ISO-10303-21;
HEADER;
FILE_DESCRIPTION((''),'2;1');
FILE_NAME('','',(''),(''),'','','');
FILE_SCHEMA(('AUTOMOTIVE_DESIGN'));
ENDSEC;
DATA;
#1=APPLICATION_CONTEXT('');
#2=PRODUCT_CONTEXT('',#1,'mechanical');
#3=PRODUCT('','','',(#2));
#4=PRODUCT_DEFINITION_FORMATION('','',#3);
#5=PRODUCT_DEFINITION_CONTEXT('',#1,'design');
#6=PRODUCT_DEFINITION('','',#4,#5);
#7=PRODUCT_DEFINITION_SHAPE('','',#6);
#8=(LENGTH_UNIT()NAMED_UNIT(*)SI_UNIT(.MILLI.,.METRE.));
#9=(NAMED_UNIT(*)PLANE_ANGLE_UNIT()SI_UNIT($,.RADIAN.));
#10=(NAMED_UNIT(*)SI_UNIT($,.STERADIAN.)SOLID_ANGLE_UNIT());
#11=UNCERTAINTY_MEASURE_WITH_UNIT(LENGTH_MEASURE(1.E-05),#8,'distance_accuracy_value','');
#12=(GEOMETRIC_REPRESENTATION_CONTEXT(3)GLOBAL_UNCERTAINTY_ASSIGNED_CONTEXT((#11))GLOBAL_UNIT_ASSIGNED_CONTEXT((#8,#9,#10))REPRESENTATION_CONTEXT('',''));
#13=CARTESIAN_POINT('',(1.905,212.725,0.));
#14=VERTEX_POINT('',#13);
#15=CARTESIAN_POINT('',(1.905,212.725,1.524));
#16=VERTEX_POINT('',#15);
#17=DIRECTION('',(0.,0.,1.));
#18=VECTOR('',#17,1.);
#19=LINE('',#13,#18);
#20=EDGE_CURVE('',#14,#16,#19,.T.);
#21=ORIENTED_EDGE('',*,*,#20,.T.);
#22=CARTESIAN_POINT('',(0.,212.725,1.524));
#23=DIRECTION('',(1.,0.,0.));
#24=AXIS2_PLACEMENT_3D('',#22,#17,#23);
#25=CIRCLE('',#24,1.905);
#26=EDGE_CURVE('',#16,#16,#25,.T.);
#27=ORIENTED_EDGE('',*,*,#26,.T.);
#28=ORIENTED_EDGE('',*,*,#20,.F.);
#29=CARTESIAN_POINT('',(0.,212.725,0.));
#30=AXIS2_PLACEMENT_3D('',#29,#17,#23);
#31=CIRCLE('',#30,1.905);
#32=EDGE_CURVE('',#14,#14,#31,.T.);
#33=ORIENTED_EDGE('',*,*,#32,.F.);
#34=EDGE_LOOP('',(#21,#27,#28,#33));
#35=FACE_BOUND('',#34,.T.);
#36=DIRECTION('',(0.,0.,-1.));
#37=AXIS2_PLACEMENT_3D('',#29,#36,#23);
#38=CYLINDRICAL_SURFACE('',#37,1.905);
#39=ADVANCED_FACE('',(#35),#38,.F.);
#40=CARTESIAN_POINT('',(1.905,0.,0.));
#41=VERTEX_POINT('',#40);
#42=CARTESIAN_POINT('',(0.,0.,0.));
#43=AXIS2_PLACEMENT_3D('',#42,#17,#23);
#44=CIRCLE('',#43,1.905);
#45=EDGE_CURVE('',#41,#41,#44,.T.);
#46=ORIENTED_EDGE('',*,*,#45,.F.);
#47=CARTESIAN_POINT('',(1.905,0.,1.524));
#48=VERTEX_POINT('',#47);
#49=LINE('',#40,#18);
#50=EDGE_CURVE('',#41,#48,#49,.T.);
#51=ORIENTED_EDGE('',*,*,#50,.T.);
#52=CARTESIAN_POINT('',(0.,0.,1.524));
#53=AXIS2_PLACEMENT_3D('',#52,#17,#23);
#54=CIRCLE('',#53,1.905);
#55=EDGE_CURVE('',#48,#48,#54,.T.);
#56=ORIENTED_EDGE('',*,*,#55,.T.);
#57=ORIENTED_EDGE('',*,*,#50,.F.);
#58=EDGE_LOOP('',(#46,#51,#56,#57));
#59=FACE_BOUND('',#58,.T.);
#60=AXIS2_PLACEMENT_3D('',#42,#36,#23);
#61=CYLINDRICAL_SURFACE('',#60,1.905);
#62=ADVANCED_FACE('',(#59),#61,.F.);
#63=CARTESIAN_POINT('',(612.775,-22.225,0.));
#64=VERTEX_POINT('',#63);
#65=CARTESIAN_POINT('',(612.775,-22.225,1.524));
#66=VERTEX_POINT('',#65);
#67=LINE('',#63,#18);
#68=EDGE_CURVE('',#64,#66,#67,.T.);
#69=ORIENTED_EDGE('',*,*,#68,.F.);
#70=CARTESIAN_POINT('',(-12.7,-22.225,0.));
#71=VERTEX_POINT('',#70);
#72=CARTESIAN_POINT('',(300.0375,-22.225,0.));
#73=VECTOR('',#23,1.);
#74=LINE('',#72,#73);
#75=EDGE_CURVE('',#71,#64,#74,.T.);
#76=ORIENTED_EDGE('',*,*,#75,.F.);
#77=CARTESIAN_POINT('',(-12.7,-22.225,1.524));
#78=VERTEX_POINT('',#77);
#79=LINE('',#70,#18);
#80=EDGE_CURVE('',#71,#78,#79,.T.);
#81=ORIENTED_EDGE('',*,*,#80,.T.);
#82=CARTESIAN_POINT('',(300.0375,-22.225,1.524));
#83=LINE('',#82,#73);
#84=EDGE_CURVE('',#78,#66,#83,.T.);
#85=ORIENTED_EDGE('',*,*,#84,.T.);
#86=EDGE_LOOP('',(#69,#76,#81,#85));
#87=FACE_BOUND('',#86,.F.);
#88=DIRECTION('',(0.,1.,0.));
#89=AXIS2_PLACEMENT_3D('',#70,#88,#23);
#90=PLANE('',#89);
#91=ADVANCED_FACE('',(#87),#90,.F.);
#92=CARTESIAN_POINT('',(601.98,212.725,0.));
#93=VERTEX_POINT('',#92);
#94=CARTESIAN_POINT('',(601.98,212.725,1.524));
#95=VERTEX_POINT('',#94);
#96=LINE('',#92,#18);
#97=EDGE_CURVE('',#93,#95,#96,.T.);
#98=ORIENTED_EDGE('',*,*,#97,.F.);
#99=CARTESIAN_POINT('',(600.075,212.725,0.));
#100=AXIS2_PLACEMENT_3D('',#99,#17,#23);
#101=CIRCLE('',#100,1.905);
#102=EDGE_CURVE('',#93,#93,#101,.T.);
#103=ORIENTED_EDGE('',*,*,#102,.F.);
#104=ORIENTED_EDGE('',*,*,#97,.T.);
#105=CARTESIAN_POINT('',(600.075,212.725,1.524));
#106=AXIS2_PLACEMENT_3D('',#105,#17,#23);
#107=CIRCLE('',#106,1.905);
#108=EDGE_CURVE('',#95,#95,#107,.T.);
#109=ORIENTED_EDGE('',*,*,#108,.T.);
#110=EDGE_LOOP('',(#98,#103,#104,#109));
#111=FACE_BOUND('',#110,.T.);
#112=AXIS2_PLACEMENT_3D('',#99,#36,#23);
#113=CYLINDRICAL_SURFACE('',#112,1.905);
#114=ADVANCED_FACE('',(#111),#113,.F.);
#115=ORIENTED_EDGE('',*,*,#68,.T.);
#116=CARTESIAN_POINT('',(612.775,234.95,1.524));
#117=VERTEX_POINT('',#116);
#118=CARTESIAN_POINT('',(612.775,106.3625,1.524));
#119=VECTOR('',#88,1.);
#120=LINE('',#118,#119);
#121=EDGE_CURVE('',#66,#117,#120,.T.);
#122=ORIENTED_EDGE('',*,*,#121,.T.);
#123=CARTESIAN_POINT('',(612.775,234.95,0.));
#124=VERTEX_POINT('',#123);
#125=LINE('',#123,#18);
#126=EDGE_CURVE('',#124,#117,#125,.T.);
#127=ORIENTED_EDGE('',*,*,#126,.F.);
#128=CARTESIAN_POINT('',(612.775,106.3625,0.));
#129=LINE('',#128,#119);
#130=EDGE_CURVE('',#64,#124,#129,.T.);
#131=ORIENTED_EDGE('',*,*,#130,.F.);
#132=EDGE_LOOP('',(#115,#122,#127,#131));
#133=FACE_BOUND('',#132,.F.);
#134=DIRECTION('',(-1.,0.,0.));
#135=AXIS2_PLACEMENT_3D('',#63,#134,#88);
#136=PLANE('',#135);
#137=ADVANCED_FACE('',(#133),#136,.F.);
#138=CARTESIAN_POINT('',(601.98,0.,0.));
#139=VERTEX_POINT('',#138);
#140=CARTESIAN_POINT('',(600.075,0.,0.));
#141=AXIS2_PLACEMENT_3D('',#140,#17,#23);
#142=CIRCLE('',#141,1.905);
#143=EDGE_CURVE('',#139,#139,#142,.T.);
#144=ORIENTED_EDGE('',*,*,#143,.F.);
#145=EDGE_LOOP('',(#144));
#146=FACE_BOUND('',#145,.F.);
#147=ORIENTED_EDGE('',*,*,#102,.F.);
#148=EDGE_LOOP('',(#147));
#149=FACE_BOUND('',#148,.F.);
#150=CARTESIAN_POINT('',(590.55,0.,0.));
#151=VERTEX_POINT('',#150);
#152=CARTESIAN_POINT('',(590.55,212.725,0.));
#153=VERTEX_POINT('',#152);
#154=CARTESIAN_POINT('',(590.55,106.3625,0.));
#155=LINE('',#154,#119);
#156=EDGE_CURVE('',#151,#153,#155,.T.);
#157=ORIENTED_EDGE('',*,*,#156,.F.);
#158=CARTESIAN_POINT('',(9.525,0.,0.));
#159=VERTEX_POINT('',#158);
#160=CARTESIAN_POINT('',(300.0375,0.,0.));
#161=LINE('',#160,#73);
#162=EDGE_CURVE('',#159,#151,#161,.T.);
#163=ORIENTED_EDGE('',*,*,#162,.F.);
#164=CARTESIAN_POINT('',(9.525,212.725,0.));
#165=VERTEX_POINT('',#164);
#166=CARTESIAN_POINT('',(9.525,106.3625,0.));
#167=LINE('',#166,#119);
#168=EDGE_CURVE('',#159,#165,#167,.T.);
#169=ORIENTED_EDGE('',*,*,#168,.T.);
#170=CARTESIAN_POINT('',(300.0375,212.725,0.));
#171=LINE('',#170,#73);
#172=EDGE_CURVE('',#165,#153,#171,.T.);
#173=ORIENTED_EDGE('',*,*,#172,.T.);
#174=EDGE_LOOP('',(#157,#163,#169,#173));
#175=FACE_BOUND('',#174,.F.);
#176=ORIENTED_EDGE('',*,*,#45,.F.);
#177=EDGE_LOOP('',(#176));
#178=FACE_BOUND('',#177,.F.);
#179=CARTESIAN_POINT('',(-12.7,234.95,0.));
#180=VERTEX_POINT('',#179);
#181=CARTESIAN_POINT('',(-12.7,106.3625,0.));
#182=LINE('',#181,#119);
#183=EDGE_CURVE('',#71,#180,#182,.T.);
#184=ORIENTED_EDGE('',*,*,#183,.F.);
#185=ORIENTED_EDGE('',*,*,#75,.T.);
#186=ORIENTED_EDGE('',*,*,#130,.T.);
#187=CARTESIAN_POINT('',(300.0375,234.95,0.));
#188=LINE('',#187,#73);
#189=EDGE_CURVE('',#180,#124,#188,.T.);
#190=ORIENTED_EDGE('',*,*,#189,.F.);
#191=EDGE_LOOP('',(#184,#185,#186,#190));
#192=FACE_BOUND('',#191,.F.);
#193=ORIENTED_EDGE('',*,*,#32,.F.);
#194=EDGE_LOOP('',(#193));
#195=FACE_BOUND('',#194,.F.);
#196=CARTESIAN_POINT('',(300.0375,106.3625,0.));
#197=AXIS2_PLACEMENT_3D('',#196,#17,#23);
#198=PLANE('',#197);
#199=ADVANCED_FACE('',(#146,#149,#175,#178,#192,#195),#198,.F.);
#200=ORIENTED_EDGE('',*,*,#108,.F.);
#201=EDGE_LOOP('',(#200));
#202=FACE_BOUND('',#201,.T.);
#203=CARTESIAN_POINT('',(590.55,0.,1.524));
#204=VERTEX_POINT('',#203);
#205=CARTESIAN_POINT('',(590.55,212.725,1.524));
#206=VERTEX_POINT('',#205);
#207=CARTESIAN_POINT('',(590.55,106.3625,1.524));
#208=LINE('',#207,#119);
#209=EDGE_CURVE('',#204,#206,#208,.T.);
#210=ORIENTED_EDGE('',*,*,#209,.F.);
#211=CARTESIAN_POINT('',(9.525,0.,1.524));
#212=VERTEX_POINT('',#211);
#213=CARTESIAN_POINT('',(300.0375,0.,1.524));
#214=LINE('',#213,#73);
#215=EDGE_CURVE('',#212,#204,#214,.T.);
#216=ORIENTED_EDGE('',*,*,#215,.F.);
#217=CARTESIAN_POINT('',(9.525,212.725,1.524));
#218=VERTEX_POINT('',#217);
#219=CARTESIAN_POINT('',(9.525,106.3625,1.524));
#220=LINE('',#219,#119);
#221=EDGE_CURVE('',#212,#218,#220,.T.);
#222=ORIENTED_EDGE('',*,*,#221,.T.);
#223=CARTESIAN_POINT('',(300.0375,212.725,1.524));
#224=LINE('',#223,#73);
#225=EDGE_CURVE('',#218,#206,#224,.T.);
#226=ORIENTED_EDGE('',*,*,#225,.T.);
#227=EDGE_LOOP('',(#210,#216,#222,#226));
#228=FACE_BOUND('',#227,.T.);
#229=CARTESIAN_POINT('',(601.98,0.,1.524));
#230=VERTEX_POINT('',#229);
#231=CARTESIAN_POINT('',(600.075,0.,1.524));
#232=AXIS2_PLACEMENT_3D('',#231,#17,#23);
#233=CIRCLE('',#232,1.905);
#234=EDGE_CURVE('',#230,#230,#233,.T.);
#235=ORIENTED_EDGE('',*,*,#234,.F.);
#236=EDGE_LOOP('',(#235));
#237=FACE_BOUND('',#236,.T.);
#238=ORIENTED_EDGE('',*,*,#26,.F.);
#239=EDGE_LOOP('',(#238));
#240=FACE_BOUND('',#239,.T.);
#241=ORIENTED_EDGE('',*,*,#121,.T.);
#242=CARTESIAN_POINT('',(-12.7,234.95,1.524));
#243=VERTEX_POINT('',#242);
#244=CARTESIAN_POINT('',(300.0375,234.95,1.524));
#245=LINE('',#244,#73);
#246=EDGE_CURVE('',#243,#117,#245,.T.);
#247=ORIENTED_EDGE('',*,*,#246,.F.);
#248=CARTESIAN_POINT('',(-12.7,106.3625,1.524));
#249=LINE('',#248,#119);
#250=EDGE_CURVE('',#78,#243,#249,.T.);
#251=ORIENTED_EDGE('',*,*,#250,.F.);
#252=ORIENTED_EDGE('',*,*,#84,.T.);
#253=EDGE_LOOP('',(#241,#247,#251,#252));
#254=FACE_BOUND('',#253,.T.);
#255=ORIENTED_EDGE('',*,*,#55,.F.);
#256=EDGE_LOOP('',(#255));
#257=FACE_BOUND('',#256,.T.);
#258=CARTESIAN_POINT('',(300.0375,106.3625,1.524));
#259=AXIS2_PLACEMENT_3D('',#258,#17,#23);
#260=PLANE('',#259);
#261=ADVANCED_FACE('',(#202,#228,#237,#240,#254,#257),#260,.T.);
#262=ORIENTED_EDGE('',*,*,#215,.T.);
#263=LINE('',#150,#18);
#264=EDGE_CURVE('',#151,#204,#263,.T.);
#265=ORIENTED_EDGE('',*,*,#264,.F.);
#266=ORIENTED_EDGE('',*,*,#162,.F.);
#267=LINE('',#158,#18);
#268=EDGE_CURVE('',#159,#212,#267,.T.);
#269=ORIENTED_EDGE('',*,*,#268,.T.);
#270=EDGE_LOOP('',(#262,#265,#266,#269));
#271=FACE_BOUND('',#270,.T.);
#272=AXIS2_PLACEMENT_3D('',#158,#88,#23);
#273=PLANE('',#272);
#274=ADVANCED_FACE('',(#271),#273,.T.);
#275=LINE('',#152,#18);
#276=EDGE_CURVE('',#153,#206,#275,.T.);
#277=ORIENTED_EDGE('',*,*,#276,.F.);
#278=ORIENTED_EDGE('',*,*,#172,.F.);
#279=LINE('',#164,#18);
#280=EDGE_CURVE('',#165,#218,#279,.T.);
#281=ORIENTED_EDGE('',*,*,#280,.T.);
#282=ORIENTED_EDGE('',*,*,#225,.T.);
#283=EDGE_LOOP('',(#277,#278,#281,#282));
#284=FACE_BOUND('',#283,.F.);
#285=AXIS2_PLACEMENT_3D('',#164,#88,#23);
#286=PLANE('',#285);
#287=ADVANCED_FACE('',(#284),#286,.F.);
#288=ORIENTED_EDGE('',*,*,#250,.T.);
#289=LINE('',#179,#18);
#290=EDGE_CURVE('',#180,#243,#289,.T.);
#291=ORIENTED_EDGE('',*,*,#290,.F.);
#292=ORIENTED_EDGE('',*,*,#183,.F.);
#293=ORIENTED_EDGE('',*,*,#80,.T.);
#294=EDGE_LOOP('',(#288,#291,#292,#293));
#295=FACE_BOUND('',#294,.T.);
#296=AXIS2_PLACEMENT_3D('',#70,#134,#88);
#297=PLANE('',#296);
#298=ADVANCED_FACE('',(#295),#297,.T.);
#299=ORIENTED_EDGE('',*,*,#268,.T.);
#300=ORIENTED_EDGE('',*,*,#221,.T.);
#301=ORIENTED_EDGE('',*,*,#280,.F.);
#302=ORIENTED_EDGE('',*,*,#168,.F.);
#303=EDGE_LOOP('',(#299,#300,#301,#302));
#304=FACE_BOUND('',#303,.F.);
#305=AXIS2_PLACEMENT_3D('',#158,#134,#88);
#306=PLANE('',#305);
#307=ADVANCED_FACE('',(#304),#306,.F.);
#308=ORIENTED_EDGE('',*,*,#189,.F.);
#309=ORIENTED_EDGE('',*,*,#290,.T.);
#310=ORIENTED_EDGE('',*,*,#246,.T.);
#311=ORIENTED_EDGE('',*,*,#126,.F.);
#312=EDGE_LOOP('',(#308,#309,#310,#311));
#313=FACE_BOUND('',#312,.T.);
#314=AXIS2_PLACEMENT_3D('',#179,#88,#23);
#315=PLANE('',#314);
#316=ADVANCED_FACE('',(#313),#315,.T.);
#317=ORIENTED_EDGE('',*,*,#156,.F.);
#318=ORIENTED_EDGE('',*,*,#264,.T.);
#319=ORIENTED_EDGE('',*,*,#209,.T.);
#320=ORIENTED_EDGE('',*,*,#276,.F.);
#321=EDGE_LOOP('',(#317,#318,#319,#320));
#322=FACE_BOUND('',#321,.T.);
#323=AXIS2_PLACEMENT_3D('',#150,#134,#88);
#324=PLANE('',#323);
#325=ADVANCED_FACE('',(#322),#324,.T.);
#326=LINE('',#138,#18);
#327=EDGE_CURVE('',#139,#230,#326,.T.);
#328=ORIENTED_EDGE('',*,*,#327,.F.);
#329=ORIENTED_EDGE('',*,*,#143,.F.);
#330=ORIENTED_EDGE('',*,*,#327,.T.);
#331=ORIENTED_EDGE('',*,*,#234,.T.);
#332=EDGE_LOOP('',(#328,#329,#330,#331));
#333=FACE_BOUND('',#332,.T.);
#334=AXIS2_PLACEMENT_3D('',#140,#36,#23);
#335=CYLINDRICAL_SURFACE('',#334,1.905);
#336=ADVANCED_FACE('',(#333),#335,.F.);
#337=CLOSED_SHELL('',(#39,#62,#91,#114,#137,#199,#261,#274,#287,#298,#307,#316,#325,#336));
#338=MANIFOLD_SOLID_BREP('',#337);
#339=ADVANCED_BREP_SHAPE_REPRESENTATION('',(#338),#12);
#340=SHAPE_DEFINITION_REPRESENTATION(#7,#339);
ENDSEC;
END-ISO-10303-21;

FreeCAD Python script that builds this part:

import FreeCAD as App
import Part
import Sketcher
from FreeCAD import Vector
Q = App.Units.Quantity

doc = App.newDocument("Part")
body = doc.addObject("PartDesign::Body", "Body")

# Sketch on XY plane
sketch1 = doc.addObject("Sketcher::SketchObject", "Sketch")
body.addObject(sketch1)
sketch1.AttachmentSupport = (doc.XY_Plane, [""])
sketch1.MapMode = "FlatFace"
sketch1.addGeometry([
    Part.LineSegment(Vector(-12.7, 234.9, 0), Vector(-12.7, -22.2, 0)),  # 0
    Part.LineSegment(Vector(-12.7, -22.2, 0), Vector(612.8, -22.2, 0)),  # 1
    Part.LineSegment(Vector(612.8, -22.2, 0), Vector(612.8, 234.9, 0)),  # 2
    Part.LineSegment(Vector(612.8, 234.9, 0), Vector(-12.7, 234.9, 0)),  # 3
    Part.Circle(Vector(0, 0, 0), Vector(0, 0, 1), 1.9),  # 4
    Part.Circle(Vector(600.1, 0, 0), Vector(0, 0, 1), 1.9),  # 5
    Part.Circle(Vector(0, 212.7, 0), Vector(0, 0, 1), 1.9),  # 6
    Part.LineSegment(Vector(590.5, 0, 0), Vector(9.5, 0, 0)),  # 7
    Part.LineSegment(Vector(9.5, 0, 0), Vector(9.5, 212.7, 0)),  # 8
    Part.LineSegment(Vector(9.5, 212.7, 0), Vector(590.5, 212.7, 0)),  # 9
    Part.LineSegment(Vector(590.5, 212.7, 0), Vector(590.5, 0, 0)),  # 10
    Part.Circle(Vector(600.1, 212.7, 0), Vector(0, 0, 1), 1.9),  # 11
], False)
sketch1.addConstraint([
    Sketcher.Constraint("Coincident", 0, 2, 1, 1),
    Sketcher.Constraint("Coincident", 1, 2, 2, 1),
    Sketcher.Constraint("Coincident", 2, 2, 3, 1),
    Sketcher.Constraint("Coincident", 3, 2, 0, 1),
    Sketcher.Constraint("Coincident", 7, 2, 8, 1),
    Sketcher.Constraint("Coincident", 8, 2, 9, 1),
    Sketcher.Constraint("Coincident", 9, 2, 10, 1),
    Sketcher.Constraint("Coincident", 10, 2, 7, 1),
    Sketcher.Constraint("Vertical", 0),
    Sketcher.Constraint("Horizontal", 1),
    Sketcher.Constraint("Vertical", 2),
    Sketcher.Constraint("Horizontal", 3),
    Sketcher.Constraint("Horizontal", 7),
    Sketcher.Constraint("Vertical", 8),
    Sketcher.Constraint("Horizontal", 9),
    Sketcher.Constraint("Vertical", 10),
    Sketcher.Constraint("Coincident", 4, 3, -1, 1),
    Sketcher.Constraint("Equal", 4, 5),
    Sketcher.Constraint("Equal", 5, 6),
    Sketcher.Constraint("Equal", 6, 11),
    Sketcher.Constraint("PointOnObject", 5, 3, -1),
    Sketcher.Constraint("PointOnObject", 6, 3, -2),
    Sketcher.Constraint("PointOnObject", 7, 2, -1),
    Sketcher.Constraint("Horizontal", 6, 3, 11, 3),
    Sketcher.Constraint("Horizontal", 11, 3, 8, 2),
    Sketcher.Constraint("Vertical", 5, 3, 11, 3),
    Sketcher.Constraint("Diameter", 4, Q("0.15 in")),
    Sketcher.Constraint("DistanceX", 0, 2, -1, 1, Q("0.5 in")),
    Sketcher.Constraint("DistanceX", 5, 3, 1, 2, Q("0.5 in")),
    Sketcher.Constraint("DistanceX", 1, 1, 1, 2, Q("24.625 in")),
    Sketcher.Constraint("DistanceX", 7, 2, 7, 1, Q("22.875 in")),
    Sketcher.Constraint("DistanceY", 0, 2, 0, 1, Q("10.125 in")),
    Sketcher.Constraint("DistanceY", 8, 1, 8, 2, Q("8.375 in")),
    Sketcher.Constraint("DistanceY", -1, 1, 2, 2, Q("9.25 in")),
    Sketcher.Constraint("DistanceX", -1, 1, 9, 2, Q("23.25 in")),
])
pad1 = doc.addObject("PartDesign::Pad", "Pad")
body.addObject(pad1)
pad1.Profile = sketch1
pad1.Length = Q("0.06 in")

doc.recompute()
